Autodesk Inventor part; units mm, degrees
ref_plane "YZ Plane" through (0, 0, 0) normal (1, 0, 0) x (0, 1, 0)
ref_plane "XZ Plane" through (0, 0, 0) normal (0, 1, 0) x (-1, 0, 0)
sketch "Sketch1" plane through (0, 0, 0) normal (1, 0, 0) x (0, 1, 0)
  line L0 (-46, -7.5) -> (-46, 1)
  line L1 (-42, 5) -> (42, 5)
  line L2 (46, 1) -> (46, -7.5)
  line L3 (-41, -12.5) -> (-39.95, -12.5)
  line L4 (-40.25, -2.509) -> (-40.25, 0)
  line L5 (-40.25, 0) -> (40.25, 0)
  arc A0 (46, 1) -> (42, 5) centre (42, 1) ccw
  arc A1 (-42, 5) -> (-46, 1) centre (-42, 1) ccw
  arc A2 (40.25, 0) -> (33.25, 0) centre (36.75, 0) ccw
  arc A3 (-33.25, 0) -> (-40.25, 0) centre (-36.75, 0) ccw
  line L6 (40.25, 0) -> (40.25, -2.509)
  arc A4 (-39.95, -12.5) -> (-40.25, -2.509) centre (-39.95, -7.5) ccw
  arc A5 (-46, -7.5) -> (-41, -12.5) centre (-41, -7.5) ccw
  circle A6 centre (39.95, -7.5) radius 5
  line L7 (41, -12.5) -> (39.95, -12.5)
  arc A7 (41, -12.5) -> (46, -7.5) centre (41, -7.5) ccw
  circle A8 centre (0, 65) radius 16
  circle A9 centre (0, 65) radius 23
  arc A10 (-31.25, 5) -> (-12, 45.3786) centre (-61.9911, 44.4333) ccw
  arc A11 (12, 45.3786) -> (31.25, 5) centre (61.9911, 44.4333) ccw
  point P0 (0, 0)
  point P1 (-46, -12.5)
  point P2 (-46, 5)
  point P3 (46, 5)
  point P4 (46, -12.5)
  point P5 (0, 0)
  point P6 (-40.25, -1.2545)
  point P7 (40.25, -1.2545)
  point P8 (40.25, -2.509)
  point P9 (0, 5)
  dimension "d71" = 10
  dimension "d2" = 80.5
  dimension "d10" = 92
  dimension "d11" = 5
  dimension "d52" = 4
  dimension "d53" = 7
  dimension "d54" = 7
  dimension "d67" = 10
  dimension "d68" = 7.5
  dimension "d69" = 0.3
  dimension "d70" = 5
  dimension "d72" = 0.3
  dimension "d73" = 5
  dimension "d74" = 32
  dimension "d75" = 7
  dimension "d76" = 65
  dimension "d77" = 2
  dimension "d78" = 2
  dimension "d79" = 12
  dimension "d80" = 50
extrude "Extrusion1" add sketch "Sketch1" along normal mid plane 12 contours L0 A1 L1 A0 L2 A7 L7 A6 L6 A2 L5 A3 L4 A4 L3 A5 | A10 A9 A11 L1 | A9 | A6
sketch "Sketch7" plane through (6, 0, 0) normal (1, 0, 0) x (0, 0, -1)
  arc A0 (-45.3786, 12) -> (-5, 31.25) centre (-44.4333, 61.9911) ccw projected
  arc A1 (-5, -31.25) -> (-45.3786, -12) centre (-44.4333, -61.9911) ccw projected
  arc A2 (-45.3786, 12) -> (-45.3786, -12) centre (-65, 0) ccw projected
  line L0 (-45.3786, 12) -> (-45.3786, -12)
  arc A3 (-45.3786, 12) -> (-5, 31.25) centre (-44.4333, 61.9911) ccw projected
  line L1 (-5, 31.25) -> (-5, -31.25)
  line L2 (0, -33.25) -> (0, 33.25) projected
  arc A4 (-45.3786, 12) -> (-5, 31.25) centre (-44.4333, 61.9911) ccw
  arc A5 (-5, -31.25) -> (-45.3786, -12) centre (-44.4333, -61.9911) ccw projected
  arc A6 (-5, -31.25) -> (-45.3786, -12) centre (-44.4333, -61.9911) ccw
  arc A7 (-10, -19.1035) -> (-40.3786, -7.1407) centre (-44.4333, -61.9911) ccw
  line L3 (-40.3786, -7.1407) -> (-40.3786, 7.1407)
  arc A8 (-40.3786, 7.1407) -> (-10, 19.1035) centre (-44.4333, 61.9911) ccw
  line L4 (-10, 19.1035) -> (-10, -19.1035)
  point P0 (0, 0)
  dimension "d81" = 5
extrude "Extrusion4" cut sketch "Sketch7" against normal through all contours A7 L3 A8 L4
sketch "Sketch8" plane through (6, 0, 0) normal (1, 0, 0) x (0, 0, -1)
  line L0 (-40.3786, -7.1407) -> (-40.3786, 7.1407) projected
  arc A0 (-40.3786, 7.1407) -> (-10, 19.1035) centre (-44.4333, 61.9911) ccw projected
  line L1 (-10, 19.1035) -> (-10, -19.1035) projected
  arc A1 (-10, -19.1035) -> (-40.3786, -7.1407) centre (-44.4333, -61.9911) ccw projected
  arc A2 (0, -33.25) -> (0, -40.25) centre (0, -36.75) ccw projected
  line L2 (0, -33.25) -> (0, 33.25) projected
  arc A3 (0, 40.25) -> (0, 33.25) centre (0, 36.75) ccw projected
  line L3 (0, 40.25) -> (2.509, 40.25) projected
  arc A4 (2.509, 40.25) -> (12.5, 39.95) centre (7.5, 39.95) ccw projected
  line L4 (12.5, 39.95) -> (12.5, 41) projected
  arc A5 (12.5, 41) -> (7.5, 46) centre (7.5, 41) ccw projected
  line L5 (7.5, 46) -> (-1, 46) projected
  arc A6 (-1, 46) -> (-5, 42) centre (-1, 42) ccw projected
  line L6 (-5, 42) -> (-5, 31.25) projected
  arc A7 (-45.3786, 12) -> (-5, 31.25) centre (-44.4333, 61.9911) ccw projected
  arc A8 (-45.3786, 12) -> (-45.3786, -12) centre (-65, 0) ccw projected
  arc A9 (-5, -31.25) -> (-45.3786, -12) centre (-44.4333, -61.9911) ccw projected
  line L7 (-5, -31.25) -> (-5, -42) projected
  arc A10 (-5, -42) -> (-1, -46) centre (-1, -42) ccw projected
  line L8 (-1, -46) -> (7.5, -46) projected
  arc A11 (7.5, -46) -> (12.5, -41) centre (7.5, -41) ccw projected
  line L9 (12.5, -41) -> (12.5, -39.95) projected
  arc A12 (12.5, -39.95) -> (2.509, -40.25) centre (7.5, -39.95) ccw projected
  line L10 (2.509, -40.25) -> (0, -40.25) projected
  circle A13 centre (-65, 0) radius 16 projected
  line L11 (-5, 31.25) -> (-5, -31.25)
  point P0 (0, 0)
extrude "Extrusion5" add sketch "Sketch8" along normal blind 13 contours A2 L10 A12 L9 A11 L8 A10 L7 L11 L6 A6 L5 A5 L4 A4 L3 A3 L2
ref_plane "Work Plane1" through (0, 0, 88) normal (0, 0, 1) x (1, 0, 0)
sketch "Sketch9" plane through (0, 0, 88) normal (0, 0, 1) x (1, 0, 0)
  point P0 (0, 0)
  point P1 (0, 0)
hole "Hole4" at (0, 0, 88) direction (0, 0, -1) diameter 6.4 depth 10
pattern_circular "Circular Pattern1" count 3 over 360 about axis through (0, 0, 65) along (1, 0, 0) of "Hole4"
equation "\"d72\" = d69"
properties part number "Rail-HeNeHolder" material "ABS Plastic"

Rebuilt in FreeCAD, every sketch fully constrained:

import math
import FreeCAD as App
import Part
import Sketcher
Q = App.Units.Quantity

doc = App.newDocument("Part")
params = doc.addObject("Spreadsheet::Sheet", "Params")
for row, (alias, value) in enumerate([
    ("sketch1_diameter", "32 mm"),
    ("sketch1_radius", "5 mm"),
    ("sketch1_radius2", "4 mm"),
    ("sketch1_radius3", "50 mm"),
    ("sketch1_radius4", "3.5 mm"),
    ("pad1_length", "12 mm"),
    ("sketch2_radius", "55 mm"),
    ("sketch3_radius", "5 mm"),
    ("sketch3_radius2", "4 mm"),
    ("sketch3_radius3", "3.5 mm"),
    ("sketch3_width", "84 mm"),
    ("sketch3_width2", "66.5 mm"),
    ("pad2_length", "13 mm"),
    ("sketch4_diameter", "6.4 mm"),
    ("hole_diameter", "6.4 mm"),
    ("hole_depth", "10 mm"),
], start=1):
    params.set(f"A{row}", alias)
    params.set(f"B{row}", "=" + value)
    params.setAlias(f"B{row}", alias)

body = doc.addObject("PartDesign::Body", "Body")

# Sketch on YZ plane
sketch1 = body.newObject("Sketcher::SketchObject", "Sketch")
sketch1.AttachmentSupport = (doc.getObject("YZ_Plane"), [""])
sketch1.MapMode = "FlatFace"
sketch1.addGeometry(Part.LineSegment(App.Vector(-46, 1, 0), App.Vector(-46, -7.5, 0)), False)
sketch1.addGeometry(Part.ArcOfCircle(Part.Circle(App.Vector(-41, -7.5, 0), App.Vector(0, 0, 1), 5), math.radians(180), math.radians(270)), False)
sketch1.addGeometry(Part.LineSegment(App.Vector(-41, -12.5, 0), App.Vector(-40, -12.5, 0)), False)
sketch1.addGeometry(Part.ArcOfCircle(Part.Circle(App.Vector(-40, -7.5, 0), App.Vector(0, 0, 1), 5), math.radians(-90), math.radians(93)), False)
sketch1.addGeometry(Part.LineSegment(App.Vector(-40.2, -2.5, 0), App.Vector(-40.2, 0, 0)), False)
sketch1.addGeometry(Part.ArcOfCircle(Part.Circle(App.Vector(-36.8, 0, 0), App.Vector(0, 0, 1), 3.5), math.radians(0), math.radians(180)), False)
sketch1.addGeometry(Part.LineSegment(App.Vector(-33.2, 0, 0), App.Vector(33.2, 0, 0)), False)
sketch1.addGeometry(Part.ArcOfCircle(Part.Circle(App.Vector(36.8, 0, 0), App.Vector(0, 0, 1), 3.5), math.radians(0), math.radians(180)), False)
sketch1.addGeometry(Part.LineSegment(App.Vector(40.2, 0, 0), App.Vector(40.2, -2.5, 0)), False)
sketch1.addGeometry(Part.ArcOfCircle(Part.Circle(App.Vector(40, -7.5, 0), App.Vector(0, 0, 1), 5), math.radians(87), math.radians(270)), False)
sketch1.addGeometry(Part.LineSegment(App.Vector(40, -12.5, 0), App.Vector(41, -12.5, 0)), False)
sketch1.addGeometry(Part.ArcOfCircle(Part.Circle(App.Vector(41, -7.5, 0), App.Vector(0, 0, 1), 5), math.radians(-90), math.radians(0)), False)
sketch1.addGeometry(Part.LineSegment(App.Vector(46, -7.5, 0), App.Vector(46, 1, 0)), False)
sketch1.addGeometry(Part.ArcOfCircle(Part.Circle(App.Vector(42, 1, 0), App.Vector(0, 0, 1), 4), math.radians(0), math.radians(90)), False)
sketch1.addGeometry(Part.LineSegment(App.Vector(42, 5, 0), App.Vector(31.2, 5, 0)), False)
sketch1.addGeometry(Part.ArcOfCircle(Part.Circle(App.Vector(62, 44.4, 0), App.Vector(0, 0, 1), 50), math.radians(179), math.radians(232)), False)
sketch1.addGeometry(Part.ArcOfCircle(Part.Circle(App.Vector(0, 65, 0), App.Vector(0, 0, 1), 23), math.radians(-59), math.radians(239)), False)
sketch1.addGeometry(Part.ArcOfCircle(Part.Circle(App.Vector(-62, 44.4, 0), App.Vector(0, 0, 1), 50), math.radians(-52), math.radians(1)), False)
sketch1.addGeometry(Part.LineSegment(App.Vector(-31.2, 5, 0), App.Vector(-42, 5, 0)), False)
sketch1.addGeometry(Part.ArcOfCircle(Part.Circle(App.Vector(-42, 1, 0), App.Vector(0, 0, 1), 4), math.radians(90), math.radians(180)), False)
sketch1.addGeometry(Part.Circle(App.Vector(0, 65, 0), App.Vector(0, 0, 1), 16), False)
sketch1.addConstraint(Sketcher.Constraint("Tangent", 0, 2, 1, 1))
sketch1.addConstraint(Sketcher.Constraint("Tangent", 1, 2, 2, 1))
sketch1.addConstraint(Sketcher.Constraint("Tangent", 2, 2, 3, 1))
sketch1.addConstraint(Sketcher.Constraint("Coincident", 3, 2, 4, 1))
sketch1.addConstraint(Sketcher.Constraint("Tangent", 4, 2, 5, 2))
sketch1.addConstraint(Sketcher.Constraint("Coincident", 5, 1, 6, 1))
sketch1.addConstraint(Sketcher.Constraint("Coincident", 6, 2, 7, 2))
sketch1.addConstraint(Sketcher.Constraint("Tangent", 7, 1, 8, 1))
sketch1.addConstraint(Sketcher.Constraint("Coincident", 8, 2, 9, 1))
sketch1.addConstraint(Sketcher.Constraint("Tangent", 9, 2, 10, 1))
sketch1.addConstraint(Sketcher.Constraint("Tangent", 10, 2, 11, 1))
sketch1.addConstraint(Sketcher.Constraint("Tangent", 11, 2, 12, 1))
sketch1.addConstraint(Sketcher.Constraint("Tangent", 12, 2, 13, 1))
sketch1.addConstraint(Sketcher.Constraint("Tangent", 13, 2, 14, 1))
sketch1.addConstraint(Sketcher.Constraint("Coincident", 14, 2, 15, 2))
sketch1.addConstraint(Sketcher.Constraint("Coincident", 15, 1, 16, 1))
sketch1.addConstraint(Sketcher.Constraint("Coincident", 16, 2, 17, 2))
sketch1.addConstraint(Sketcher.Constraint("Coincident", 17, 1, 18, 1))
sketch1.addConstraint(Sketcher.Constraint("Tangent", 18, 2, 19, 1))
sketch1.addConstraint(Sketcher.Constraint("Tangent", 19, 2, 0, 1))
sketch1.addConstraint(Sketcher.Constraint("Vertical", 0))
sketch1.addConstraint(Sketcher.Constraint("Horizontal", 2))
sketch1.addConstraint(Sketcher.Constraint("Vertical", 4))
sketch1.addConstraint(Sketcher.Constraint("Horizontal", 6))
sketch1.addConstraint(Sketcher.Constraint("Vertical", 8))
sketch1.addConstraint(Sketcher.Constraint("Horizontal", 10))
sketch1.addConstraint(Sketcher.Constraint("Vertical", 12))
sketch1.addConstraint(Sketcher.Constraint("Horizontal", 14))
sketch1.addConstraint(Sketcher.Constraint("Horizontal", 18))
sketch1.addConstraint(Sketcher.Constraint("Coincident", 20, 3, 16, 3))
sketch1.addConstraint(Sketcher.Constraint("Equal", 1, 3))
sketch1.addConstraint(Sketcher.Constraint("Equal", 5, 7))
sketch1.addConstraint(Sketcher.Constraint("Equal", 3, 9))
sketch1.addConstraint(Sketcher.Constraint("Equal", 9, 11))
sketch1.addConstraint(Sketcher.Constraint("Equal", 15, 17))
sketch1.addConstraint(Sketcher.Constraint("Equal", 13, 19))
sketch1.addConstraint(Sketcher.Constraint("Symmetric", 5, 3, 7, 3, -1, 1))
sketch1.addConstraint(Sketcher.Constraint("Symmetric", 3, 3, 9, 3, -2))
sketch1.addConstraint(Sketcher.Constraint("Symmetric", 15, 3, 17, 3, -2))
sketch1.addConstraint(Sketcher.Constraint("Symmetric", 13, 3, 19, 3, -2))
sketch1.addConstraint(Sketcher.Constraint("PointOnObject", 5, 3, -1))
sketch1.addConstraint(Sketcher.Constraint("PointOnObject", 16, 3, -2))
sketch1.addConstraint(Sketcher.Constraint("PointOnObject", 5, 1, -1))
sketch1.addConstraint(Sketcher.Constraint("Diameter", 20, Q("32 mm")))
sketch1.addConstraint(Sketcher.Constraint("Radius", 1, Q("5 mm")))
sketch1.addConstraint(Sketcher.Constraint("Radius", 13, Q("4 mm")))
sketch1.addConstraint(Sketcher.Constraint("Radius", 15, Q("50 mm")))
sketch1.addConstraint(Sketcher.Constraint("Radius", 5, Q("3.5 mm")))
sketch1.addConstraint(Sketcher.Constraint("DistanceY", -1, 1, 16, 3, Q("65 mm")))
sketch1.addConstraint(Sketcher.Constraint("DistanceY", -1, 1, 13, 2, Q("5 mm")))
sketch1.addConstraint(Sketcher.Constraint("DistanceX", -1, 1, 15, 1, Q("12 mm")))
sketch1.addConstraint(Sketcher.Constraint("Radius", 16, Q("23 mm")))
sketch1.addConstraint(Sketcher.Constraint("DistanceX", 14, 2, 6, 2, Q("2 mm")))
sketch1.addConstraint(Sketcher.Constraint("DistanceY", 1, 3, -1, 1, Q("7.5 mm")))
sketch1.addConstraint(Sketcher.Constraint("DistanceX", 3, 2, 3, 3, Q("0.3 mm")))
sketch1.addConstraint(Sketcher.Constraint("DistanceX", 6, 1, 6, 2, Q("66.5 mm")))
sketch1.addConstraint(Sketcher.Constraint("DistanceX", 1, 3, -1, 1, Q("41 mm")))
sketch1.setExpression("Constraints[43]", "Params.sketch1_diameter")
sketch1.setExpression("Constraints[44]", "Params.sketch1_radius")
sketch1.setExpression("Constraints[45]", "Params.sketch1_radius2")
sketch1.setExpression("Constraints[46]", "Params.sketch1_radius3")
sketch1.setExpression("Constraints[47]", "Params.sketch1_radius4")
pad1 = body.newObject("PartDesign::Pad", "Pad")
pad1.Profile = sketch1
pad1.setExpression("Length", "Params.pad1_length")
pad1.Midplane = True

# Sketch on YZ plane
sketch2 = body.newObject("Sketcher::SketchObject", "Sketch001")
sketch2.AttachmentSupport = (doc.getObject("YZ_Plane"), [""])
sketch2.MapMode = "FlatFace"
sketch2.AttachmentOffset = App.Placement(App.Vector(0, 0, 6), App.Rotation())
sketch2.addGeometry(Part.ArcOfCircle(Part.Circle(App.Vector(-62, 44, 0), App.Vector(0, 0, 1), 55), math.radians(-39), math.radians(-4)), False)
sketch2.addGeometry(Part.LineSegment(App.Vector(-19, 10, 0), App.Vector(19, 10, 0)), False)
sketch2.addGeometry(Part.ArcOfCircle(Part.Circle(App.Vector(62, 44, 0), App.Vector(0, 0, 1), 55), math.radians(-176), math.radians(-141)), False)
sketch2.addGeometry(Part.LineSegment(App.Vector(7, 40, 0), App.Vector(-7, 40, 0)), False)
sketch2.addConstraint(Sketcher.Constraint("Coincident", 0, 1, 1, 1))
sketch2.addConstraint(Sketcher.Constraint("Coincident", 1, 2, 2, 2))
sketch2.addConstraint(Sketcher.Constraint("Coincident", 2, 1, 3, 1))
sketch2.addConstraint(Sketcher.Constraint("Coincident", 3, 2, 0, 2))
sketch2.addConstraint(Sketcher.Constraint("Horizontal", 1))
sketch2.addConstraint(Sketcher.Constraint("Horizontal", 3))
sketch2.addConstraint(Sketcher.Constraint("Equal", 0, 2))
sketch2.addConstraint(Sketcher.Constraint("Symmetric", 0, 3, 2, 3, -2))
sketch2.addConstraint(Sketcher.Constraint("Radius", 0, Q("55 mm")))
sketch2.addConstraint(Sketcher.Constraint("DistanceY", -1, 1, 0, 1, Q("10 mm")))
sketch2.addConstraint(Sketcher.Constraint("DistanceX", 1, 1, 1, 2, Q("38.207 mm")))
sketch2.addConstraint(Sketcher.Constraint("DistanceX", 3, 2, 3, 1, Q("14.2814 mm")))
sketch2.addConstraint(Sketcher.Constraint("DistanceX", 0, 3, -1, 1, Q("61.991 mm")))
sketch2.setExpression("Constraints[8]", "Params.sketch2_radius")
pocket1 = body.newObject("PartDesign::Pocket", "Pocket")
pocket1.Profile = sketch2
pocket1.Type = "ThroughAll"

# Sketch on YZ plane
sketch3 = body.newObject("Sketcher::SketchObject", "Sketch002")
sketch3.AttachmentSupport = (doc.getObject("YZ_Plane"), [""])
sketch3.MapMode = "FlatFace"
sketch3.AttachmentOffset = App.Placement(App.Vector(0, 0, 6), App.Rotation())
sketch3.addGeometry(Part.ArcOfCircle(Part.Circle(App.Vector(-36.8, 0, 0), App.Vector(0, 0, 1), 3.5), math.radians(0), math.radians(180)), False)
sketch3.addGeometry(Part.LineSegment(App.Vector(-33.2, 0, 0), App.Vector(33.2, 0, 0)), False)
sketch3.addGeometry(Part.ArcOfCircle(Part.Circle(App.Vector(36.8, 0, 0), App.Vector(0, 0, 1), 3.5), math.radians(0), math.radians(180)), False)
sketch3.addGeometry(Part.LineSegment(App.Vector(40.2, 0, 0), App.Vector(40.2, -2.5, 0)), False)
sketch3.addGeometry(Part.ArcOfCircle(Part.Circle(App.Vector(40, -7.5, 0), App.Vector(0, 0, 1), 5), math.radians(87), math.radians(270)), False)
sketch3.addGeometry(Part.LineSegment(App.Vector(40, -12.5, 0), App.Vector(41, -12.5, 0)), False)
sketch3.addGeometry(Part.ArcOfCircle(Part.Circle(App.Vector(41, -7.5, 0), App.Vector(0, 0, 1), 5), math.radians(-90), math.radians(0)), False)
sketch3.addGeometry(Part.LineSegment(App.Vector(46, -7.5, 0), App.Vector(46, 1, 0)), False)
sketch3.addGeometry(Part.ArcOfCircle(Part.Circle(App.Vector(42, 1, 0), App.Vector(0, 0, 1), 4), math.radians(0), math.radians(90)), False)
sketch3.addGeometry(Part.LineSegment(App.Vector(42, 5, 0), App.Vector(-42, 5, 0)), False)
sketch3.addGeometry(Part.ArcOfCircle(Part.Circle(App.Vector(-42, 1, 0), App.Vector(0, 0, 1), 4), math.radians(90), math.radians(180)), False)
sketch3.addGeometry(Part.LineSegment(App.Vector(-46, 1, 0), App.Vector(-46, -7.5, 0)), False)
sketch3.addGeometry(Part.ArcOfCircle(Part.Circle(App.Vector(-41, -7.5, 0), App.Vector(0, 0, 1), 5), math.radians(180), math.radians(270)), False)
sketch3.addGeometry(Part.LineSegment(App.Vector(-41, -12.5, 0), App.Vector(-40, -12.5, 0)), False)
sketch3.addGeometry(Part.ArcOfCircle(Part.Circle(App.Vector(-40, -7.5, 0), App.Vector(0, 0, 1), 5), math.radians(-90), math.radians(93)), False)
sketch3.addGeometry(Part.LineSegment(App.Vector(-40.2, -2.5, 0), App.Vector(-40.2, 0, 0)), False)
sketch3.addConstraint(Sketcher.Constraint("Coincident", 0, 1, 1, 1))
sketch3.addConstraint(Sketcher.Constraint("Coincident", 1, 2, 2, 2))
sketch3.addConstraint(Sketcher.Constraint("Tangent", 2, 1, 3, 1))
sketch3.addConstraint(Sketcher.Constraint("Coincident", 3, 2, 4, 1))
sketch3.addConstraint(Sketcher.Constraint("Tangent", 4, 2, 5, 1))
sketch3.addConstraint(Sketcher.Constraint("Tangent", 5, 2, 6, 1))
sketch3.addConstraint(Sketcher.Constraint("Tangent", 6, 2, 7, 1))
sketch3.addConstraint(Sketcher.Constraint("Tangent", 7, 2, 8, 1))
sketch3.addConstraint(Sketcher.Constraint("Tangent", 8, 2, 9, 1))
sketch3.addConstraint(Sketcher.Constraint("Tangent", 9, 2, 10, 1))
sketch3.addConstraint(Sketcher.Constraint("Tangent", 10, 2, 11, 1))
sketch3.addConstraint(Sketcher.Constraint("Tangent", 11, 2, 12, 1))
sketch3.addConstraint(Sketcher.Constraint("Tangent", 12, 2, 13, 1))
sketch3.addConstraint(Sketcher.Constraint("Tangent", 13, 2, 14, 1))
sketch3.addConstraint(Sketcher.Constraint("Coincident", 14, 2, 15, 1))
sketch3.addConstraint(Sketcher.Constraint("Tangent", 15, 2, 0, 2))
sketch3.addConstraint(Sketcher.Constraint("Horizontal", 1))
sketch3.addConstraint(Sketcher.Constraint("Vertical", 3))
sketch3.addConstraint(Sketcher.Constraint("Horizontal", 5))
sketch3.addConstraint(Sketcher.Constraint("Vertical", 7))
sketch3.addConstraint(Sketcher.Constraint("Horizontal", 9))
sketch3.addConstraint(Sketcher.Constraint("Vertical", 11))
sketch3.addConstraint(Sketcher.Constraint("Horizontal", 13))
sketch3.addConstraint(Sketcher.Constraint("Vertical", 15))
sketch3.addConstraint(Sketcher.Constraint("Equal", 0, 2))
sketch3.addConstraint(Sketcher.Constraint("Equal", 4, 6))
sketch3.addConstraint(Sketcher.Constraint("Equal", 8, 10))
sketch3.addConstraint(Sketcher.Constraint("Equal", 6, 12))
sketch3.addConstraint(Sketcher.Constraint("Equal", 12, 14))
sketch3.addConstraint(Sketcher.Constraint("Symmetric", 0, 3, 2, 3, -1, 1))
sketch3.addConstraint(Sketcher.Constraint("Symmetric", 6, 3, 12, 3, -2))
sketch3.addConstraint(Sketcher.Constraint("PointOnObject", 0, 3, -1))
sketch3.addConstraint(Sketcher.Constraint("PointOnObject", 0, 1, -1))
sketch3.addConstraint(Sketcher.Constraint("Horizontal", 3, 2, 14, 2))
sketch3.addConstraint(Sketcher.Constraint("Radius", 4, Q("5 mm")))
sketch3.addConstraint(Sketcher.Constraint("Radius", 8, Q("4 mm")))
sketch3.addConstraint(Sketcher.Constraint("Radius", 0, Q("3.5 mm")))
sketch3.addConstraint(Sketcher.Constraint("DistanceX", 9, 2, 9, 1, Q("84 mm")))
sketch3.addConstraint(Sketcher.Constraint("DistanceX", 1, 1, 1, 2, Q("66.5 mm")))
sketch3.addConstraint(Sketcher.Constraint("DistanceY", 7, 1, 7, 2, Q("8.5 mm")))
sketch3.addConstraint(Sketcher.Constraint("DistanceY", -1, 1, 8, 3, Q("1 mm")))
sketch3.addConstraint(Sketcher.Constraint("DistanceX", 5, 1, 5, 2, Q("1.05 mm")))
sketch3.setExpression("Constraints[34]", "Params.sketch3_radius")
sketch3.setExpression("Constraints[35]", "Params.sketch3_radius2")
sketch3.setExpression("Constraints[36]", "Params.sketch3_radius3")
sketch3.setExpression("Constraints[37]", "Params.sketch3_width")
sketch3.setExpression("Constraints[38]", "Params.sketch3_width2")
pad2 = body.newObject("PartDesign::Pad", "Pad001")
pad2.Profile = sketch3
pad2.setExpression("Length", "Params.pad2_length")

# Sketch on XY plane
sketch4 = body.newObject("Sketcher::SketchObject", "Sketch003")
sketch4.AttachmentSupport = (doc.getObject("XY_Plane"), [""])
sketch4.MapMode = "FlatFace"
sketch4.AttachmentOffset = App.Placement(App.Vector(0, 0, 88), App.Rotation())
sketch4.addGeometry(Part.Circle(App.Vector(0, 0, 0), App.Vector(0, 0, 1), 3.2), False)
sketch4.addConstraint(Sketcher.Constraint("Coincident", 0, 3, -1, 1))
sketch4.addConstraint(Sketcher.Constraint("Diameter", 0, Q("6.4 mm")))
sketch4.setExpression("Constraints[1]", "Params.sketch4_diameter")
doc.recompute()
hole = body.newObject("PartDesign::Hole", "Hole")
hole.Profile = sketch4
hole.ThreadType = "None"
hole.setExpression("Diameter", "Params.hole_diameter")
hole.DepthType = "Dimension"
hole.setExpression("Depth", "Params.hole_depth")
hole.DrillPoint = "Flat"
doc.recompute()

datumline = body.newObject("PartDesign::Line", "DatumLine")
datumline.Placement = App.Placement(App.Vector(0, 0, 65), App.Rotation(App.Vector(0, 0, 1), App.Vector(1, 0, 0)))
polarpattern = body.newObject("PartDesign::PolarPattern", "PolarPattern")
polarpattern.Originals = [hole]
polarpattern.Axis = (datumline, [""])
polarpattern.Angle = 360
polarpattern.Occurrences = 3
body.Tip = polarpattern

doc.recompute()
